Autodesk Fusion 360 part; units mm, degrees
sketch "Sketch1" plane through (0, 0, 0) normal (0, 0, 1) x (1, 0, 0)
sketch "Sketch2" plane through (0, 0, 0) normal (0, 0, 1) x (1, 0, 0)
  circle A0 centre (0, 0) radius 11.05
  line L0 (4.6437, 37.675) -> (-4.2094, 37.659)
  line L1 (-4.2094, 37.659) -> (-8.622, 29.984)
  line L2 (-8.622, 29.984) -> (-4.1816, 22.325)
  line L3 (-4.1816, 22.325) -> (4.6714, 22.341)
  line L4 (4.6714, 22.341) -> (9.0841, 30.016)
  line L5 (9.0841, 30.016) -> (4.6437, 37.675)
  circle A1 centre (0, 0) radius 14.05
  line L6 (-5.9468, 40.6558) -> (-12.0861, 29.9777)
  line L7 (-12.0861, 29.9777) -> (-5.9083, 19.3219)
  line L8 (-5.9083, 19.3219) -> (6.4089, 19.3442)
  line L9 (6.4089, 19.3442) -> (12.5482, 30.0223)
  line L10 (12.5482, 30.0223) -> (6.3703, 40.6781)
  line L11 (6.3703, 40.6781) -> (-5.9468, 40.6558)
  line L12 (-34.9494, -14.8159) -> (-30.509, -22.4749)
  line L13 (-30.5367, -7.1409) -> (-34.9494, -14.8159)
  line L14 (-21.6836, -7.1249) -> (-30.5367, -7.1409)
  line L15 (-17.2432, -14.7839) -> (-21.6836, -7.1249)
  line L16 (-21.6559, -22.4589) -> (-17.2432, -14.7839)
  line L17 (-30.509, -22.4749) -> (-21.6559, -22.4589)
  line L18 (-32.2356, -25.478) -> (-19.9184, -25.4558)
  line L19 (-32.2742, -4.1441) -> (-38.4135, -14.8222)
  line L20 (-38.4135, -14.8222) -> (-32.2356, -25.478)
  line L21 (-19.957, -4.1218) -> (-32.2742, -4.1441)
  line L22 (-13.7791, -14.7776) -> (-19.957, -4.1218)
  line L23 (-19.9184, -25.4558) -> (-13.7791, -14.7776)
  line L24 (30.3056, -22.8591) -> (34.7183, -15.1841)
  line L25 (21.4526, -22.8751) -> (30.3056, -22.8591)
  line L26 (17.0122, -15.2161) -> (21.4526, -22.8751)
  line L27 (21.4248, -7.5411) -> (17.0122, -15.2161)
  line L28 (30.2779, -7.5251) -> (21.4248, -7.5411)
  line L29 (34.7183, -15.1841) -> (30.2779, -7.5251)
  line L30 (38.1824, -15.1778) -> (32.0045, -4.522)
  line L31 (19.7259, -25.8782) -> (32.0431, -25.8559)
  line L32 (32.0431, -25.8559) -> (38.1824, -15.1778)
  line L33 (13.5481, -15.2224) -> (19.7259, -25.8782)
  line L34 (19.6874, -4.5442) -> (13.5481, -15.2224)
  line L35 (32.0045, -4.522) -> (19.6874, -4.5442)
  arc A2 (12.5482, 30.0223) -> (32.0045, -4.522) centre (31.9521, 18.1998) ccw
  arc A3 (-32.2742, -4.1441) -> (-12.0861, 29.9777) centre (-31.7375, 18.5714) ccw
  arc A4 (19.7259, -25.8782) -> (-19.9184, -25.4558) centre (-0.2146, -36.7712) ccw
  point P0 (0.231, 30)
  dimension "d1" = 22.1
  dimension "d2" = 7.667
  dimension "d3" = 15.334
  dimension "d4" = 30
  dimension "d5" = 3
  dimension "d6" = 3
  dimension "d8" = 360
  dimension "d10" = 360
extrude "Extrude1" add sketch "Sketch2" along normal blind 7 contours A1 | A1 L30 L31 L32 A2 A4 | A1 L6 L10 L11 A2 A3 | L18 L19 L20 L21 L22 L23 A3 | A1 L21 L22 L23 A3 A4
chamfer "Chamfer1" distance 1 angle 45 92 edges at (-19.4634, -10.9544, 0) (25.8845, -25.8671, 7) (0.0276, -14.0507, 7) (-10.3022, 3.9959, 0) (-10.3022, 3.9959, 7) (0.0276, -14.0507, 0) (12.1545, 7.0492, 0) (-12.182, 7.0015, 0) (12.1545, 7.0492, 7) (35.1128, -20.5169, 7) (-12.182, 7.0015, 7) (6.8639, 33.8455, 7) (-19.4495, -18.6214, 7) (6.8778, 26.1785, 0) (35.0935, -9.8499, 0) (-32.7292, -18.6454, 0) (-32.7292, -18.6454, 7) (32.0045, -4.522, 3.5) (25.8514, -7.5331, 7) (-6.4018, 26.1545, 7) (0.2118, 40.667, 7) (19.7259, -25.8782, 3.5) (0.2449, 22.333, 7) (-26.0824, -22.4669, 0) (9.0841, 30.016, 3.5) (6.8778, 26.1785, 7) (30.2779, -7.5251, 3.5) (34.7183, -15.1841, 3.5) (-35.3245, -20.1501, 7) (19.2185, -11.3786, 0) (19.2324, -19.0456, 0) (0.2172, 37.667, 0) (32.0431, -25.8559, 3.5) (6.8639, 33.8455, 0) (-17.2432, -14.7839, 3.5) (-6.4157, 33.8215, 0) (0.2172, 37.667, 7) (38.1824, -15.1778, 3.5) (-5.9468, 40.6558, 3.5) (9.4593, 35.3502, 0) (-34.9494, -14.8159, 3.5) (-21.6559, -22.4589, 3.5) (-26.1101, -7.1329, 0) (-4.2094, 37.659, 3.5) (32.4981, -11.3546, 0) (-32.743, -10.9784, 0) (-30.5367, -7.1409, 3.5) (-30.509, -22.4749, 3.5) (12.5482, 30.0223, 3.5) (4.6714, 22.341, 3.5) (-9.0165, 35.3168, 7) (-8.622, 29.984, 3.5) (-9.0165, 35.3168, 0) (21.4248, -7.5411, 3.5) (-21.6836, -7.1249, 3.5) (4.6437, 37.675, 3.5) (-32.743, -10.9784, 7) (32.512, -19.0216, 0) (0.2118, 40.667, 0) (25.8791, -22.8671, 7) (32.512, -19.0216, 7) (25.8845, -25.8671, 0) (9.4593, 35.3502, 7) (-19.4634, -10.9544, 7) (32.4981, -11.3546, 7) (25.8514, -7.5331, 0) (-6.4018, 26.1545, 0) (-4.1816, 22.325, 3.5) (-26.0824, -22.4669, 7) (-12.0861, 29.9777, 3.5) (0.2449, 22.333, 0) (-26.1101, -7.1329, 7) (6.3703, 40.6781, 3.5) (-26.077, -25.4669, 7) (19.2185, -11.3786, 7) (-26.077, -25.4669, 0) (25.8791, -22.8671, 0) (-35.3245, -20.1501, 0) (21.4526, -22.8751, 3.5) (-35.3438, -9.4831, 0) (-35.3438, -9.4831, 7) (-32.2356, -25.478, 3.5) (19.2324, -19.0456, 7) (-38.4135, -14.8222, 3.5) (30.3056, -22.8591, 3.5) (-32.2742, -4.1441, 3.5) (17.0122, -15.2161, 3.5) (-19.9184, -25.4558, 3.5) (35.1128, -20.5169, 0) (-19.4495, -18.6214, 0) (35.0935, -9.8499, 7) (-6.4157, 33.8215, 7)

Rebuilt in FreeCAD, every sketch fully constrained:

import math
import FreeCAD as App
import Part
import Sketcher
from FreeCAD import Vector


def add_polygon(sketch, points):
    """Adds a closed chain of lines whose ends are joined by coincident constraints."""
    first, n = sketch.GeometryCount, len(points)
    for a, b in zip(points, points[1:] + points[:1]):
        sketch.addGeometry(Part.LineSegment(App.Vector(*a, 0), App.Vector(*b, 0)), False)
    for i in range(n):
        sketch.addConstraint(Sketcher.Constraint("Coincident", first + i, 2, first + (i + 1) % n, 1))

doc = App.newDocument("Part")
body = doc.addObject("PartDesign::Body", "Body")

# Sketch on XY plane
sketch1 = body.newObject("Sketcher::SketchObject", "Sketch")
sketch1.AttachmentSupport = (doc.getObject("XY_Plane"), [""])
sketch1.MapMode = "FlatFace"
sketch1.addGeometry(Part.ArcOfCircle(Part.Circle(Vector(32, 18, 0), Vector(0, 0, 1), 23), math.radians(149), math.radians(270)), False)  # 0
sketch1.addGeometry(Part.LineSegment(Vector(13, 30, 0), Vector(6, 41, 0)), False)  # 1
sketch1.addGeometry(Part.LineSegment(Vector(6, 41, 0), Vector(-6, 41, 0)), False)  # 2
sketch1.addGeometry(Part.LineSegment(Vector(-6, 41, 0), Vector(-12, 30, 0)), False)  # 3
sketch1.addGeometry(Part.ArcOfCircle(Part.Circle(Vector(-32, 19, 0), Vector(0, 0, 1), 23), math.radians(-91), math.radians(30)), False)  # 4
sketch1.addGeometry(Part.LineSegment(Vector(-32, -4, 0), Vector(-38, -15, 0)), False)  # 5
sketch1.addGeometry(Part.LineSegment(Vector(-38, -15, 0), Vector(-32, -25, 0)), False)  # 6
sketch1.addGeometry(Part.LineSegment(Vector(-32, -25, 0), Vector(-20, -25, 0)), False)  # 7
sketch1.addGeometry(Part.ArcOfCircle(Part.Circle(Vector(0, -37, 0), Vector(0, 0, 1), 23), math.radians(29), math.radians(150)), False)  # 8
sketch1.addGeometry(Part.LineSegment(Vector(20, -26, 0), Vector(32, -26, 0)), False)  # 9
sketch1.addGeometry(Part.LineSegment(Vector(32, -26, 0), Vector(38, -15, 0)), False)  # 10
sketch1.addGeometry(Part.LineSegment(Vector(38, -15, 0), Vector(32, -5, 0)), False)  # 11
sketch1.addGeometry(Part.Circle(Vector(0, 0, 0), Vector(0, 0, 1), 11), False)  # 12
add_polygon(sketch1, [(21, -23), (17, -15), (21, -8), (30, -8), (35, -15), (30, -23)])  # lines 13-18
add_polygon(sketch1, [(5, 38), (9, 30), (5, 22), (-4, 22), (-9, 30), (-4, 38)])  # lines 19-24
add_polygon(sketch1, [(-22, -7), (-17, -15), (-22, -22), (-31, -22), (-35, -15), (-31, -7)])  # lines 25-30
sketch1.addConstraint([
    Sketcher.Constraint("Coincident", 0, 1, 1, 1),
    Sketcher.Constraint("Coincident", 1, 2, 2, 1),
    Sketcher.Constraint("Coincident", 2, 2, 3, 1),
    Sketcher.Constraint("Coincident", 3, 2, 4, 2),
    Sketcher.Constraint("Coincident", 4, 1, 5, 1),
    Sketcher.Constraint("Coincident", 5, 2, 6, 1),
    Sketcher.Constraint("Coincident", 6, 2, 7, 1),
    Sketcher.Constraint("Coincident", 7, 2, 8, 2),
    Sketcher.Constraint("Coincident", 8, 1, 9, 1),
    Sketcher.Constraint("Coincident", 9, 2, 10, 1),
    Sketcher.Constraint("Coincident", 10, 2, 11, 1),
    Sketcher.Constraint("Coincident", 11, 2, 0, 2),
    Sketcher.Constraint("Coincident", 12, 3, -1, 1),
    Sketcher.Constraint("Equal", 0, 4),
    Sketcher.Constraint("Equal", 4, 8),
    Sketcher.Constraint("Parallel", 3, 5),
    Sketcher.Constraint("Parallel", 1, 6),
    Sketcher.Constraint("Parallel", 2, 7),
    Sketcher.Constraint("Parallel", 7, 9),
    Sketcher.Constraint("Parallel", 5, 10),
    Sketcher.Constraint("Parallel", 6, 11),
    Sketcher.Constraint("Parallel", 11, 13),
    Sketcher.Constraint("Parallel", 10, 14),
    Sketcher.Constraint("Parallel", 9, 15),
    Sketcher.Constraint("Parallel", 13, 16),
    Sketcher.Constraint("Parallel", 14, 17),
    Sketcher.Constraint("Parallel", 15, 18),
    Sketcher.Constraint("Parallel", 16, 19),
    Sketcher.Constraint("Parallel", 17, 20),
    Sketcher.Constraint("Parallel", 18, 21),
    Sketcher.Constraint("Parallel", 19, 22),
    Sketcher.Constraint("Parallel", 20, 23),
    Sketcher.Constraint("Parallel", 21, 24),
    Sketcher.Constraint("Parallel", 22, 25),
    Sketcher.Constraint("Parallel", 23, 26),
    Sketcher.Constraint("Parallel", 24, 27),
    Sketcher.Constraint("Parallel", 25, 28),
    Sketcher.Constraint("Parallel", 26, 29),
    Sketcher.Constraint("Parallel", 27, 30),
    Sketcher.Constraint("Equal", 1, 2),
    Sketcher.Constraint("Equal", 2, 3),
    Sketcher.Constraint("Equal", 3, 5),
    Sketcher.Constraint("Equal", 5, 6),
    Sketcher.Constraint("Equal", 6, 7),
    Sketcher.Constraint("Equal", 7, 9),
    Sketcher.Constraint("Equal", 9, 10),
    Sketcher.Constraint("Equal", 10, 11),
    Sketcher.Constraint("Equal", 13, 14),
    Sketcher.Constraint("Equal", 14, 15),
    Sketcher.Constraint("Equal", 15, 16),
    Sketcher.Constraint("Equal", 18, 19),
    Sketcher.Constraint("Equal", 19, 20),
    Sketcher.Constraint("Equal", 20, 21),
    Sketcher.Constraint("Equal", 21, 22),
    Sketcher.Constraint("Equal", 24, 25),
    Sketcher.Constraint("Equal", 25, 26),
    Sketcher.Constraint("Equal", 26, 27),
    Sketcher.Constraint("Equal", 27, 28),
    Sketcher.Constraint("Diameter", 12, 22.1),
    Sketcher.Constraint("DistanceY", 21, 2, 23, 2, 15.334),
    Sketcher.Constraint("Radius", 0, 22.7219),
    Sketcher.Constraint("DistanceY", 4, 1, 2, 2, 44.8),
    Sketcher.Constraint("DistanceY", 9, 2, 7, 2, 0.4),
    Sketcher.Constraint("Distance", 13, 8.853),
    Sketcher.Constraint("DistanceX", -1, 1, 0, 3, 31.952),
    Sketcher.Constraint("DistanceY", -1, 1, 1, 2, 40.678),
    Sketcher.Constraint("DistanceX", 3, 2, -1, 1, 12.086),
    Sketcher.Constraint("DistanceY", 4, 1, -1, 1, 4.144),
    Sketcher.Constraint("DistanceY", 6, 2, -1, 1, 25.478),
    Sketcher.Constraint("DistanceX", -1, 1, 8, 1, 19.726),
    Sketcher.Constraint("DistanceY", 13, 2, -1, 1, 15.216),
    Sketcher.Constraint("DistanceX", -1, 1, 15, 2, 30.278),
    Sketcher.Constraint("DistanceX", -1, 1, 19, 2, 9.084),
    Sketcher.Constraint("DistanceY", -1, 1, 19, 2, 30.016),
    Sketcher.Constraint("DistanceY", 25, 2, -1, 1, 14.784),
    Sketcher.Constraint("DistanceX", 26, 2, -1, 1, 21.656),
    Sketcher.Constraint("DistanceX", 4, 3, 8, 3, 31.523),
])
pad1 = body.newObject("PartDesign::Pad", "Pad")
pad1.Profile = sketch1
pad1.Length = 7
doc.recompute()

chamfer = body.newObject("PartDesign::Chamfer", "Chamfer")
chamfer.Base = (pad1, ["Edge1"])
chamfer.UseAllEdges = True
chamfer.Size = 1

doc.recompute()
